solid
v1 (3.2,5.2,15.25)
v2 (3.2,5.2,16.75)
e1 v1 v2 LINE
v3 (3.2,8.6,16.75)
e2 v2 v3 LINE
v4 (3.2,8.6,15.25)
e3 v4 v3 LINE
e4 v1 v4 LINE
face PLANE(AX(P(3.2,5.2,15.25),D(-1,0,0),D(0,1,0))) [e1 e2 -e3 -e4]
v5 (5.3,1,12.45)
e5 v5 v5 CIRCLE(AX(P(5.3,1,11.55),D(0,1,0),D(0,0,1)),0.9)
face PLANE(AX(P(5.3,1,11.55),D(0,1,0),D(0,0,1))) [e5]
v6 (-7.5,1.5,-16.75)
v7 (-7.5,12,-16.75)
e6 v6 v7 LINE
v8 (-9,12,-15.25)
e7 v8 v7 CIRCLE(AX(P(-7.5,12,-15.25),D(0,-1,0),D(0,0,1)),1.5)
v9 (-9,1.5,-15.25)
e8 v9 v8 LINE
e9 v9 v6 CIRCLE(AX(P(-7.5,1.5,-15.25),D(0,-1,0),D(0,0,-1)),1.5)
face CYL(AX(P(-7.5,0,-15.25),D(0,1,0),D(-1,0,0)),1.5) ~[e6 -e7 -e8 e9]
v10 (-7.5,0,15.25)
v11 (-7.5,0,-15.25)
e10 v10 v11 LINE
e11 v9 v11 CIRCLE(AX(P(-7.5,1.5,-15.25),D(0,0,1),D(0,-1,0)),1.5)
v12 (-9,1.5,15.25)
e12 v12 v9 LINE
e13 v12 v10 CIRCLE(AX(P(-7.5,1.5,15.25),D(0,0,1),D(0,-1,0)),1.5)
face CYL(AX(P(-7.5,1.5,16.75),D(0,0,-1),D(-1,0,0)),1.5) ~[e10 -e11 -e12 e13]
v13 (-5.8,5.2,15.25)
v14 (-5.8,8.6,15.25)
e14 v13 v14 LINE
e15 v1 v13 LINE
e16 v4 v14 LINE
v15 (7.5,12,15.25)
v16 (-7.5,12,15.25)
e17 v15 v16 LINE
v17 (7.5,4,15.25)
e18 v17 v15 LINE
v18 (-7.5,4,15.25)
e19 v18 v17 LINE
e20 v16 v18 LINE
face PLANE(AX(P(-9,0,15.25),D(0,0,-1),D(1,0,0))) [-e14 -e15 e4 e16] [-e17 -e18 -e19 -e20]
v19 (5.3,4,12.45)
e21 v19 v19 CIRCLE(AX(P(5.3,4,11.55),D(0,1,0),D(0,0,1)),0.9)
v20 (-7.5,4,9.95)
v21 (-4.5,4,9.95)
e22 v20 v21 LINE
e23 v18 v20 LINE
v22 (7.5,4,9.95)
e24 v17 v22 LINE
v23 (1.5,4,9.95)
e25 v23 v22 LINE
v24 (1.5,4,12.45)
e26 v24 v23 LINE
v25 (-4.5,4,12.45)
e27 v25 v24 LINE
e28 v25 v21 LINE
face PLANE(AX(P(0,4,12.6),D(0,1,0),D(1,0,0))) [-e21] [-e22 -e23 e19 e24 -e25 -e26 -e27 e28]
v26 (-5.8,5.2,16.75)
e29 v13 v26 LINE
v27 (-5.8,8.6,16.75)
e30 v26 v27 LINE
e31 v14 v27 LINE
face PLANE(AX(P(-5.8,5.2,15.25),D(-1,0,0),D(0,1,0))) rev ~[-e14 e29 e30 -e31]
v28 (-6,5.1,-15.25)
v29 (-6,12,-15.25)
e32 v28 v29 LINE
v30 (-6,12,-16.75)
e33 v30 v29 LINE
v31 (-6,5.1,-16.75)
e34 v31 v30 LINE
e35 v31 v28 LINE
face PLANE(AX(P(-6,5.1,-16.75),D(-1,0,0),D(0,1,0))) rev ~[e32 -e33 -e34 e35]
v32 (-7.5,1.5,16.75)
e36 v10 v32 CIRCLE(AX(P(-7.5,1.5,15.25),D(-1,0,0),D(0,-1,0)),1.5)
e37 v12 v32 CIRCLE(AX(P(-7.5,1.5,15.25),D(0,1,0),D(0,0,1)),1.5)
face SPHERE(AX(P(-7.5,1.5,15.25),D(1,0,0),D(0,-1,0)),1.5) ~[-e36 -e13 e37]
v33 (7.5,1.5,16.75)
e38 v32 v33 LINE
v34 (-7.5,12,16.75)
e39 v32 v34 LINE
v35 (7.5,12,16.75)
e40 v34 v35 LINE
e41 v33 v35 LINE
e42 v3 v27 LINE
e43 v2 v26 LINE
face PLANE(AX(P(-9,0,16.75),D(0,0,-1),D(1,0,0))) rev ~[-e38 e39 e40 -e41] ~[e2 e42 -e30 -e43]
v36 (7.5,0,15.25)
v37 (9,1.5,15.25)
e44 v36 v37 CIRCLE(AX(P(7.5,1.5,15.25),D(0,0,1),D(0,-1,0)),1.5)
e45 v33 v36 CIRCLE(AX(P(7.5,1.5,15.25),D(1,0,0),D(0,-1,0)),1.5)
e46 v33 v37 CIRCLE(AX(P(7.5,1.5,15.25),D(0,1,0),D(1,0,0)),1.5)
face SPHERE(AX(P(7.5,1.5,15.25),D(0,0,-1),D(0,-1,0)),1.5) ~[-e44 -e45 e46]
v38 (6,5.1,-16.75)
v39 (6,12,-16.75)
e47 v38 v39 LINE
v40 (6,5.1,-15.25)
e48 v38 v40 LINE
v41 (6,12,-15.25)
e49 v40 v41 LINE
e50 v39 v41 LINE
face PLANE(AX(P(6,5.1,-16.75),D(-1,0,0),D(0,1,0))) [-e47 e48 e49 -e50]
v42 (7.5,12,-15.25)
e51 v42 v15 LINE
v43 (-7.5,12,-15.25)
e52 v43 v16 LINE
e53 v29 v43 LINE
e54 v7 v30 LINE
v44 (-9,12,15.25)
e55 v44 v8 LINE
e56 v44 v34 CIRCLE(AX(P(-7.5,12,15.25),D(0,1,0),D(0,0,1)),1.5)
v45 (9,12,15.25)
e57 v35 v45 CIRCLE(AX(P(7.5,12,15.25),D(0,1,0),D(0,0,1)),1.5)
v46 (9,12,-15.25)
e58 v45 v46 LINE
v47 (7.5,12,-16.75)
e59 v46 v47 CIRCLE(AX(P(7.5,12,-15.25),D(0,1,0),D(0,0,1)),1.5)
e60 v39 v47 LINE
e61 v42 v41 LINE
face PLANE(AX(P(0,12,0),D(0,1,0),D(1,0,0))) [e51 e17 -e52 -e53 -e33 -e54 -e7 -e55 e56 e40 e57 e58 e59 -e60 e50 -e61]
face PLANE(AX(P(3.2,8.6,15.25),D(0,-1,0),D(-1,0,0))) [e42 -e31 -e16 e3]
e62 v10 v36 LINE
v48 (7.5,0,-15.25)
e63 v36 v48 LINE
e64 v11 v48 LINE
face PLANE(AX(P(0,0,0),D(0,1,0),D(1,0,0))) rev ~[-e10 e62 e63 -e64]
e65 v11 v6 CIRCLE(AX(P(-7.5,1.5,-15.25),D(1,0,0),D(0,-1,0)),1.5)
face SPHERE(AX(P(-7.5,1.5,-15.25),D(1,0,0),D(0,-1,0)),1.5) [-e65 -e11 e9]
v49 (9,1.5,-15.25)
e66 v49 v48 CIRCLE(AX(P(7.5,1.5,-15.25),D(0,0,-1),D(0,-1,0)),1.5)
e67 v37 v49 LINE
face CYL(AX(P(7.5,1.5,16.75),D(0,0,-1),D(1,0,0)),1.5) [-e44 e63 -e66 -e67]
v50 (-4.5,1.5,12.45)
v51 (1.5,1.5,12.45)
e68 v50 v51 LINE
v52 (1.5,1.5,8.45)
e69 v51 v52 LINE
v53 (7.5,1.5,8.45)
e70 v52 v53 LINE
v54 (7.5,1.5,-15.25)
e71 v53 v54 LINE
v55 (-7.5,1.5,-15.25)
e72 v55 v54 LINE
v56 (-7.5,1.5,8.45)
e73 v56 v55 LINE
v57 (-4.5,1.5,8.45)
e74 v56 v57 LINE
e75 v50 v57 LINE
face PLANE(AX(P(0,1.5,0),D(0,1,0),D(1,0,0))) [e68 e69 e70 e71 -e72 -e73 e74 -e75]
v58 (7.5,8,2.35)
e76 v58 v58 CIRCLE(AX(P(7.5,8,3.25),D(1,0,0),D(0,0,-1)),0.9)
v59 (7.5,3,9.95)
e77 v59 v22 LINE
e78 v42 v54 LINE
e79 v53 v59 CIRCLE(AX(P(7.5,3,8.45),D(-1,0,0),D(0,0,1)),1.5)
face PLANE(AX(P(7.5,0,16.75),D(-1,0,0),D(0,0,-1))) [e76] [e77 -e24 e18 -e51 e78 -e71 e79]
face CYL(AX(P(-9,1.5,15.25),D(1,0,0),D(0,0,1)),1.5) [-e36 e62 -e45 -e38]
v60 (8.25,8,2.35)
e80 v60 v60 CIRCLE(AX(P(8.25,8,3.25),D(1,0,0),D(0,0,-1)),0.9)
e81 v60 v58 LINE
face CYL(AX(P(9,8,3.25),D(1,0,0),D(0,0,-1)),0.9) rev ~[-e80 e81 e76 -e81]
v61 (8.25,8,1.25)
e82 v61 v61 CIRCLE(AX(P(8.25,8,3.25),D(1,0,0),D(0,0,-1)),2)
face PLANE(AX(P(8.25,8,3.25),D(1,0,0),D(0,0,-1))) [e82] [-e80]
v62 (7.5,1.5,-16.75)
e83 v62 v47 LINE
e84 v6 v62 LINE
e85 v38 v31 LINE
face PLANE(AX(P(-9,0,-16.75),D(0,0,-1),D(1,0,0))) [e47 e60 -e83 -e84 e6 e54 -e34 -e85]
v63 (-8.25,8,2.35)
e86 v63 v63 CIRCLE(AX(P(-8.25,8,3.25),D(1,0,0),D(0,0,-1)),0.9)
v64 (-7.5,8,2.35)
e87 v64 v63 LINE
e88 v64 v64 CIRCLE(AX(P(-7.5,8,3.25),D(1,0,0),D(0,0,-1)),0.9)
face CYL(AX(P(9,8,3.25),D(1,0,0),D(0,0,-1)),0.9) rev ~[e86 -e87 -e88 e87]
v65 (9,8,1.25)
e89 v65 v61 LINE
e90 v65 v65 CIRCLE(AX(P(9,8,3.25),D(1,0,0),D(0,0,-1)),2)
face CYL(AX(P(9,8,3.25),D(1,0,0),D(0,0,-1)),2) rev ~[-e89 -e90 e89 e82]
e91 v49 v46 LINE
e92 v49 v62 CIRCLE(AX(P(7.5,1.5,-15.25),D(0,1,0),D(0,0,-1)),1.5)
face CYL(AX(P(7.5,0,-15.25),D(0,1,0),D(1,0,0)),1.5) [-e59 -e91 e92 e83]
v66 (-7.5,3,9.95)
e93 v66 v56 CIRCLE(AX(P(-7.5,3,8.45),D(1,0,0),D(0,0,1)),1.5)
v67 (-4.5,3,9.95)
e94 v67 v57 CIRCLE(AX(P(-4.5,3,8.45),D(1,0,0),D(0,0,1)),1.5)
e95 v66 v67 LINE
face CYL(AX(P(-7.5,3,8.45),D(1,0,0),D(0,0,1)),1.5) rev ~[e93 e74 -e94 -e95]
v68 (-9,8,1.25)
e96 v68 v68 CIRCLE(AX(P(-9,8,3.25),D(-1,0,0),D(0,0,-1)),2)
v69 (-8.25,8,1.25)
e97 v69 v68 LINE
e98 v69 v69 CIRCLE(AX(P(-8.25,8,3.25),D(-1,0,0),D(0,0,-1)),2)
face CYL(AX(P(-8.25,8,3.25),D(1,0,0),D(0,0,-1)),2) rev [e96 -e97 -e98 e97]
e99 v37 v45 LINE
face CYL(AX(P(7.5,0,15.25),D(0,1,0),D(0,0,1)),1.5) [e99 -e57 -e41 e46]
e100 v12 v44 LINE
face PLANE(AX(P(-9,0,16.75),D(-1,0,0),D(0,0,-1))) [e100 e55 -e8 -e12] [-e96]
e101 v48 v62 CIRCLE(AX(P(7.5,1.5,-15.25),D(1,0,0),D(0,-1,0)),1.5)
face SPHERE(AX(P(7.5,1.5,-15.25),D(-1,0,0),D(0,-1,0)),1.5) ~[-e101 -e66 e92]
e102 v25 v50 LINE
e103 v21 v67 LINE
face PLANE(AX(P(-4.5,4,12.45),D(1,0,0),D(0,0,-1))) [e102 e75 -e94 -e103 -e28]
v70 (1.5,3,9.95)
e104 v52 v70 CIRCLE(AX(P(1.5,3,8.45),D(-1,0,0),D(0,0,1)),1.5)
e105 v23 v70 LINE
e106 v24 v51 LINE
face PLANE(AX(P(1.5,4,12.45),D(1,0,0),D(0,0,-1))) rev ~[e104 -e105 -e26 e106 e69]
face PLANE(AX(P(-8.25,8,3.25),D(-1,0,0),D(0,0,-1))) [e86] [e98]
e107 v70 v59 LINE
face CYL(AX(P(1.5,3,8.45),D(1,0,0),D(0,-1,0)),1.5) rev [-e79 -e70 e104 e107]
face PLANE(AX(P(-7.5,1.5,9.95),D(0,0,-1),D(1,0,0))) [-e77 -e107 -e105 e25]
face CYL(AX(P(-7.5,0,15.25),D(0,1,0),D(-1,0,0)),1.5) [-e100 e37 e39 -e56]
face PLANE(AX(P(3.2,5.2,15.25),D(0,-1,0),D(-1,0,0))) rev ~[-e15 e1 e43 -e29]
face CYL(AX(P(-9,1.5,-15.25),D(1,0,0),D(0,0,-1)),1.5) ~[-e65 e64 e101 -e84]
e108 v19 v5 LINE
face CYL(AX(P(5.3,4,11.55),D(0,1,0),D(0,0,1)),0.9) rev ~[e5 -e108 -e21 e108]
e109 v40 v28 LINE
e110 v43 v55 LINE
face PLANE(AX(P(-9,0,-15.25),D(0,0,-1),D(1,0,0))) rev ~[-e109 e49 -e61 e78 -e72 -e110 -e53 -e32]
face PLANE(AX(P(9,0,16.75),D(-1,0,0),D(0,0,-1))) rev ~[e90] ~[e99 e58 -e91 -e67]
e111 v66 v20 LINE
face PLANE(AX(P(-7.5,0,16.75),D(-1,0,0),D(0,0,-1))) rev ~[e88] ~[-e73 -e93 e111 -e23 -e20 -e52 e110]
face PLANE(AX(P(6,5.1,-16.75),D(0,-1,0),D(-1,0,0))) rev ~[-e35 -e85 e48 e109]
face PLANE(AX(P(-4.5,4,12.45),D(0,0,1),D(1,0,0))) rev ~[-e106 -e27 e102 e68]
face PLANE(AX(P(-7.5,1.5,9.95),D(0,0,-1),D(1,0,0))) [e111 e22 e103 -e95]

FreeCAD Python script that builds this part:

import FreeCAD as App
import Part
import Sketcher
from FreeCAD import Vector
Q = App.Units.Quantity


def edges_at(feature, points):
    """Names of the edges that pass closest to the given points."""
    edges = feature.Shape.Edges
    near = lambda p: min(range(len(edges)), key=lambda i: edges[i].distToShape(Part.Vertex(*p))[0])
    return sorted({f"Edge{near(p) + 1}" for p in points})


def faces_at(feature, points):
    """Names of the faces that lie closest to the given points."""
    faces = feature.Shape.Faces
    near = lambda p: min(range(len(faces)), key=lambda i: faces[i].distToShape(Part.Vertex(*p))[0])
    return sorted({f"Face{near(p) + 1}" for p in points})

doc = App.newDocument("Part")
body = doc.addObject("PartDesign::Body", "Body")

# Sketch on XZ plane
sketch1 = body.newObject("Sketcher::SketchObject", "Sketch")
sketch1.AttachmentSupport = (doc.getObject("XZ_Plane"), [""])
sketch1.MapMode = "FlatFace"
sketch1.addGeometry([
    Part.LineSegment(Vector(-9, -16.75, 0), Vector(-9, 16.75, 0)),
    Part.LineSegment(Vector(-9, 16.75, 0), Vector(9, 16.75, 0)),
    Part.LineSegment(Vector(9, 16.75, 0), Vector(9, -16.75, 0)),
    Part.LineSegment(Vector(9, -16.75, 0), Vector(-9, -16.75, 0)),
], False)
sketch1.addConstraint([
    Sketcher.Constraint("Coincident", 0, 2, 1, 1),
    Sketcher.Constraint("Coincident", 1, 2, 2, 1),
    Sketcher.Constraint("Coincident", 2, 2, 3, 1),
    Sketcher.Constraint("Coincident", 3, 2, 0, 1),
    Sketcher.Constraint("Vertical", 0),
    Sketcher.Constraint("Horizontal", 1),
    Sketcher.Constraint("Vertical", 2),
    Sketcher.Constraint("Horizontal", 3),
    Sketcher.Constraint("Symmetric", 0, 2, 2, 2, -1, 1),
    Sketcher.Constraint("DistanceX", 1, 1, 1, 2, Q("18 mm")),
    Sketcher.Constraint("DistanceY", 0, 1, 0, 2, Q("33.5 mm")),
])
pad1 = body.newObject("PartDesign::Pad", "Pad")
pad1.Profile = sketch1
pad1.Length = 12
pad1.Reversed = True
doc.recompute()

thickness = body.newObject("PartDesign::Thickness", "Thickness")
thickness.Base = (pad1, faces_at(pad1, [(0, 12, 0)]))
thickness.Value = 1.5
thickness.Reversed = True
thickness.Join = "Intersection"
doc.recompute()

fillet = body.newObject("PartDesign::Fillet", "Fillet")
fillet.Base = (thickness, edges_at(thickness, [
    (0, 0, -16.75),
    (9, 0, 0),
    (0, 0, 16.75),
    (-9, 0, 0),
    (-9, 6, -16.75),
    (9, 6, -16.75),
    (9, 6, 16.75),
    (-9, 6, 16.75),
]))
fillet.Radius = 1.5

# Sketch on XZ plane
sketch2 = body.newObject("Sketcher::SketchObject", "Sketch001")
sketch2.AttachmentSupport = (doc.getObject("XZ_Plane"), [""])
sketch2.MapMode = "FlatFace"
sketch2.AttachmentOffset = App.Placement(Vector(0, 0, -1.5), App.Rotation())
sketch2.addGeometry([
    Part.LineSegment(Vector(-7.5, 9.95, 0), Vector(-7.5, 15.25, 0)),
    Part.LineSegment(Vector(-7.5, 15.25, 0), Vector(7.5, 15.25, 0)),
    Part.LineSegment(Vector(7.5, 15.25, 0), Vector(7.5, 9.95, 0)),
    Part.LineSegment(Vector(7.5, 9.95, 0), Vector(-7.5, 9.95, 0)),
], False)
sketch2.addConstraint([
    Sketcher.Constraint("Coincident", 0, 2, 1, 1),
    Sketcher.Constraint("Coincident", 1, 2, 2, 1),
    Sketcher.Constraint("Coincident", 2, 2, 3, 1),
    Sketcher.Constraint("Coincident", 3, 2, 0, 1),
    Sketcher.Constraint("Vertical", 0),
    Sketcher.Constraint("Horizontal", 1),
    Sketcher.Constraint("Vertical", 2),
    Sketcher.Constraint("Horizontal", 3),
    Sketcher.Constraint("DistanceX", 1, 1, 1, 2, Q("15 mm")),
    Sketcher.Constraint("DistanceY", 0, 1, 0, 2, Q("5.3 mm")),
    Sketcher.Constraint("DistanceX", 0, 2, -1, 1, Q("7.5 mm")),
    Sketcher.Constraint("DistanceY", -1, 1, 0, 2, Q("15.25 mm")),
])
pad2 = body.newObject("PartDesign::Pad", "Pad001")
pad2.Profile = sketch2
pad2.Length = 2.5
pad2.Reversed = True

# Sketch on XZ plane
sketch3 = body.newObject("Sketcher::SketchObject", "Sketch002")
sketch3.AttachmentSupport = (doc.getObject("XZ_Plane"), [""])
sketch3.MapMode = "FlatFace"
sketch3.AttachmentOffset = App.Placement(Vector(0, 0, -4), App.Rotation())
sketch3.addGeometry([
    Part.LineSegment(Vector(-4.5, 9.95, 0), Vector(-4.5, 12.45, 0)),
    Part.LineSegment(Vector(-4.5, 12.45, 0), Vector(1.5, 12.45, 0)),
    Part.LineSegment(Vector(1.5, 12.45, 0), Vector(1.5, 9.95, 0)),
    Part.LineSegment(Vector(1.5, 9.95, 0), Vector(-4.5, 9.95, 0)),
], False)
sketch3.addConstraint([
    Sketcher.Constraint("Coincident", 0, 2, 1, 1),
    Sketcher.Constraint("Coincident", 1, 2, 2, 1),
    Sketcher.Constraint("Coincident", 2, 2, 3, 1),
    Sketcher.Constraint("Coincident", 3, 2, 0, 1),
    Sketcher.Constraint("Vertical", 0),
    Sketcher.Constraint("Horizontal", 1),
    Sketcher.Constraint("Vertical", 2),
    Sketcher.Constraint("Horizontal", 3),
    Sketcher.Constraint("DistanceX", 1, 1, 1, 2, Q("6 mm")),
    Sketcher.Constraint("DistanceY", 0, 1, 0, 2, Q("2.5 mm")),
    Sketcher.Constraint("DistanceX", 0, 2, -1, 1, Q("4.5 mm")),
    Sketcher.Constraint("DistanceY", -1, 1, 0, 2, Q("12.45 mm")),
])
pocket1 = body.newObject("PartDesign::Pocket", "Pocket")
pocket1.Profile = sketch3
pocket1.Length = 2.5
pocket1.Reversed = True
doc.recompute()

fillet2 = body.newObject("PartDesign::Fillet", "Fillet001")
fillet2.Base = (pocket1, edges_at(pocket1, [(4.5, 1.5, 9.95), (-6, 1.5, 9.95)]))
fillet2.Radius = 1.5

# Sketch on XY plane
sketch4 = body.newObject("Sketcher::SketchObject", "Sketch003")
sketch4.AttachmentSupport = (doc.getObject("XY_Plane"), [""])
sketch4.MapMode = "FlatFace"
sketch4.AttachmentOffset = App.Placement(Vector(0, 0, 15.25), App.Rotation())
sketch4.addGeometry([
    Part.LineSegment(Vector(3.2, 8.6, 0), Vector(3.2, 5.2, 0)),
    Part.LineSegment(Vector(3.2, 5.2, 0), Vector(-5.8, 5.2, 0)),
    Part.LineSegment(Vector(-5.8, 5.2, 0), Vector(-5.8, 8.6, 0)),
    Part.LineSegment(Vector(-5.8, 8.6, 0), Vector(3.2, 8.6, 0)),
], False)
sketch4.addConstraint([
    Sketcher.Constraint("Coincident", 0, 2, 1, 1),
    Sketcher.Constraint("Coincident", 1, 2, 2, 1),
    Sketcher.Constraint("Coincident", 2, 2, 3, 1),
    Sketcher.Constraint("Coincident", 3, 2, 0, 1),
    Sketcher.Constraint("Vertical", 0),
    Sketcher.Constraint("Horizontal", 1),
    Sketcher.Constraint("Vertical", 2),
    Sketcher.Constraint("Horizontal", 3),
    Sketcher.Constraint("DistanceX", 1, 2, 1, 1, Q("9 mm")),
    Sketcher.Constraint("DistanceY", 0, 2, 0, 1, Q("3.4 mm")),
    Sketcher.Constraint("DistanceX", -1, 1, 0, 2, Q("3.2 mm")),
    Sketcher.Constraint("DistanceY", -1, 1, 0, 2, Q("5.2 mm")),
])
pocket2 = body.newObject("PartDesign::Pocket", "Pocket001")
pocket2.Profile = sketch4
pocket2.Length = 2.5
pocket2.Reversed = True

# Sketch on XY plane
sketch5 = body.newObject("Sketcher::SketchObject", "Sketch004")
sketch5.AttachmentSupport = (doc.getObject("XY_Plane"), [""])
sketch5.MapMode = "FlatFace"
sketch5.AttachmentOffset = App.Placement(Vector(0, 0, -16.75), App.Rotation())
sketch5.addGeometry([
    Part.LineSegment(Vector(6, 13.1, 0), Vector(6, 5.1, 0)),
    Part.LineSegment(Vector(6, 5.1, 0), Vector(-6, 5.1, 0)),
    Part.LineSegment(Vector(-6, 5.1, 0), Vector(-6, 13.1, 0)),
    Part.LineSegment(Vector(-6, 13.1, 0), Vector(6, 13.1, 0)),
], False)
sketch5.addConstraint([
    Sketcher.Constraint("Coincident", 0, 2, 1, 1),
    Sketcher.Constraint("Coincident", 1, 2, 2, 1),
    Sketcher.Constraint("Coincident", 2, 2, 3, 1),
    Sketcher.Constraint("Coincident", 3, 2, 0, 1),
    Sketcher.Constraint("Vertical", 0),
    Sketcher.Constraint("Horizontal", 1),
    Sketcher.Constraint("Vertical", 2),
    Sketcher.Constraint("Horizontal", 3),
    Sketcher.Constraint("DistanceX", 1, 2, 1, 1, Q("12 mm")),
    Sketcher.Constraint("DistanceY", 0, 2, 0, 1, Q("8 mm")),
    Sketcher.Constraint("DistanceX", -1, 1, 0, 2, Q("6 mm")),
    Sketcher.Constraint("DistanceY", -1, 1, 0, 2, Q("5.1 mm")),
])
pocket3 = body.newObject("PartDesign::Pocket", "Pocket002")
pocket3.Profile = sketch5
pocket3.Length = 2.5
pocket3.Reversed = True

# Sketch on XZ plane
sketch6 = body.newObject("Sketcher::SketchObject", "Sketch005")
sketch6.AttachmentSupport = (doc.getObject("XZ_Plane"), [""])
sketch6.MapMode = "FlatFace"
sketch6.AttachmentOffset = App.Placement(Vector(0, 0, -4), App.Rotation())
sketch6.addGeometry(Part.Circle(Vector(5.3, 11.55, 0), Vector(0, 0, 1), 0.9), False)
sketch6.addConstraint([
    Sketcher.Constraint("Diameter", 0, Q("1.8 mm")),
    Sketcher.Constraint("DistanceX", -1, 1, 0, 3, Q("5.3 mm")),
    Sketcher.Constraint("DistanceY", -1, 1, 0, 3, Q("11.55 mm")),
])
pocket4 = body.newObject("PartDesign::Pocket", "Pocket003")
pocket4.Profile = sketch6
pocket4.Length = 3
pocket4.Reversed = True

# Sketch on YZ plane
sketch7 = body.newObject("Sketcher::SketchObject", "Sketch006")
sketch7.AttachmentSupport = (doc.getObject("YZ_Plane"), [""])
sketch7.MapMode = "FlatFace"
sketch7.AttachmentOffset = App.Placement(Vector(0, 0, 9), App.Rotation())
sketch7.addGeometry(Part.Circle(Vector(8, 3.25, 0), Vector(0, 0, 1), 0.9), False)
sketch7.addConstraint([
    Sketcher.Constraint("Diameter", 0, Q("1.8 mm")),
    Sketcher.Constraint("DistanceX", -1, 1, 0, 3, Q("8 mm")),
    Sketcher.Constraint("DistanceY", -1, 1, 0, 3, Q("3.25 mm")),
])
pocket5 = body.newObject("PartDesign::Pocket", "Pocket004")
pocket5.Profile = sketch7
pocket5.Length = 23.5

# Sketch on YZ plane
sketch8 = body.newObject("Sketcher::SketchObject", "Sketch007")
sketch8.AttachmentSupport = (doc.getObject("YZ_Plane"), [""])
sketch8.MapMode = "FlatFace"
sketch8.AttachmentOffset = App.Placement(Vector(0, 0, 9), App.Rotation())
sketch8.addGeometry(Part.Circle(Vector(8, 3.25, 0), Vector(0, 0, 1), 2), False)
sketch8.addConstraint([
    Sketcher.Constraint("Diameter", 0, Q("4 mm")),
    Sketcher.Constraint("DistanceX", -1, 1, 0, 3, Q("8 mm")),
    Sketcher.Constraint("DistanceY", -1, 1, 0, 3, Q("3.25 mm")),
])
pocket6 = body.newObject("PartDesign::Pocket", "Pocket005")
pocket6.Profile = sketch8
pocket6.Length = 0.75

# Sketch on YZ plane
sketch9 = body.newObject("Sketcher::SketchObject", "Sketch008")
sketch9.AttachmentSupport = (doc.getObject("YZ_Plane"), [""])
sketch9.MapMode = "FlatFace"
sketch9.AttachmentOffset = App.Placement(Vector(0, 0, -8.25), App.Rotation())
sketch9.addGeometry(Part.Circle(Vector(8, 3.25, 0), Vector(0, 0, 1), 2), False)
sketch9.addConstraint([
    Sketcher.Constraint("Diameter", 0, Q("4 mm")),
    Sketcher.Constraint("DistanceX", -1, 1, 0, 3, Q("8 mm")),
    Sketcher.Constraint("DistanceY", -1, 1, 0, 3, Q("3.25 mm")),
])
pocket7 = body.newObject("PartDesign::Pocket", "Pocket006")
pocket7.Profile = sketch9
pocket7.Length = 0.75

doc.recompute()
